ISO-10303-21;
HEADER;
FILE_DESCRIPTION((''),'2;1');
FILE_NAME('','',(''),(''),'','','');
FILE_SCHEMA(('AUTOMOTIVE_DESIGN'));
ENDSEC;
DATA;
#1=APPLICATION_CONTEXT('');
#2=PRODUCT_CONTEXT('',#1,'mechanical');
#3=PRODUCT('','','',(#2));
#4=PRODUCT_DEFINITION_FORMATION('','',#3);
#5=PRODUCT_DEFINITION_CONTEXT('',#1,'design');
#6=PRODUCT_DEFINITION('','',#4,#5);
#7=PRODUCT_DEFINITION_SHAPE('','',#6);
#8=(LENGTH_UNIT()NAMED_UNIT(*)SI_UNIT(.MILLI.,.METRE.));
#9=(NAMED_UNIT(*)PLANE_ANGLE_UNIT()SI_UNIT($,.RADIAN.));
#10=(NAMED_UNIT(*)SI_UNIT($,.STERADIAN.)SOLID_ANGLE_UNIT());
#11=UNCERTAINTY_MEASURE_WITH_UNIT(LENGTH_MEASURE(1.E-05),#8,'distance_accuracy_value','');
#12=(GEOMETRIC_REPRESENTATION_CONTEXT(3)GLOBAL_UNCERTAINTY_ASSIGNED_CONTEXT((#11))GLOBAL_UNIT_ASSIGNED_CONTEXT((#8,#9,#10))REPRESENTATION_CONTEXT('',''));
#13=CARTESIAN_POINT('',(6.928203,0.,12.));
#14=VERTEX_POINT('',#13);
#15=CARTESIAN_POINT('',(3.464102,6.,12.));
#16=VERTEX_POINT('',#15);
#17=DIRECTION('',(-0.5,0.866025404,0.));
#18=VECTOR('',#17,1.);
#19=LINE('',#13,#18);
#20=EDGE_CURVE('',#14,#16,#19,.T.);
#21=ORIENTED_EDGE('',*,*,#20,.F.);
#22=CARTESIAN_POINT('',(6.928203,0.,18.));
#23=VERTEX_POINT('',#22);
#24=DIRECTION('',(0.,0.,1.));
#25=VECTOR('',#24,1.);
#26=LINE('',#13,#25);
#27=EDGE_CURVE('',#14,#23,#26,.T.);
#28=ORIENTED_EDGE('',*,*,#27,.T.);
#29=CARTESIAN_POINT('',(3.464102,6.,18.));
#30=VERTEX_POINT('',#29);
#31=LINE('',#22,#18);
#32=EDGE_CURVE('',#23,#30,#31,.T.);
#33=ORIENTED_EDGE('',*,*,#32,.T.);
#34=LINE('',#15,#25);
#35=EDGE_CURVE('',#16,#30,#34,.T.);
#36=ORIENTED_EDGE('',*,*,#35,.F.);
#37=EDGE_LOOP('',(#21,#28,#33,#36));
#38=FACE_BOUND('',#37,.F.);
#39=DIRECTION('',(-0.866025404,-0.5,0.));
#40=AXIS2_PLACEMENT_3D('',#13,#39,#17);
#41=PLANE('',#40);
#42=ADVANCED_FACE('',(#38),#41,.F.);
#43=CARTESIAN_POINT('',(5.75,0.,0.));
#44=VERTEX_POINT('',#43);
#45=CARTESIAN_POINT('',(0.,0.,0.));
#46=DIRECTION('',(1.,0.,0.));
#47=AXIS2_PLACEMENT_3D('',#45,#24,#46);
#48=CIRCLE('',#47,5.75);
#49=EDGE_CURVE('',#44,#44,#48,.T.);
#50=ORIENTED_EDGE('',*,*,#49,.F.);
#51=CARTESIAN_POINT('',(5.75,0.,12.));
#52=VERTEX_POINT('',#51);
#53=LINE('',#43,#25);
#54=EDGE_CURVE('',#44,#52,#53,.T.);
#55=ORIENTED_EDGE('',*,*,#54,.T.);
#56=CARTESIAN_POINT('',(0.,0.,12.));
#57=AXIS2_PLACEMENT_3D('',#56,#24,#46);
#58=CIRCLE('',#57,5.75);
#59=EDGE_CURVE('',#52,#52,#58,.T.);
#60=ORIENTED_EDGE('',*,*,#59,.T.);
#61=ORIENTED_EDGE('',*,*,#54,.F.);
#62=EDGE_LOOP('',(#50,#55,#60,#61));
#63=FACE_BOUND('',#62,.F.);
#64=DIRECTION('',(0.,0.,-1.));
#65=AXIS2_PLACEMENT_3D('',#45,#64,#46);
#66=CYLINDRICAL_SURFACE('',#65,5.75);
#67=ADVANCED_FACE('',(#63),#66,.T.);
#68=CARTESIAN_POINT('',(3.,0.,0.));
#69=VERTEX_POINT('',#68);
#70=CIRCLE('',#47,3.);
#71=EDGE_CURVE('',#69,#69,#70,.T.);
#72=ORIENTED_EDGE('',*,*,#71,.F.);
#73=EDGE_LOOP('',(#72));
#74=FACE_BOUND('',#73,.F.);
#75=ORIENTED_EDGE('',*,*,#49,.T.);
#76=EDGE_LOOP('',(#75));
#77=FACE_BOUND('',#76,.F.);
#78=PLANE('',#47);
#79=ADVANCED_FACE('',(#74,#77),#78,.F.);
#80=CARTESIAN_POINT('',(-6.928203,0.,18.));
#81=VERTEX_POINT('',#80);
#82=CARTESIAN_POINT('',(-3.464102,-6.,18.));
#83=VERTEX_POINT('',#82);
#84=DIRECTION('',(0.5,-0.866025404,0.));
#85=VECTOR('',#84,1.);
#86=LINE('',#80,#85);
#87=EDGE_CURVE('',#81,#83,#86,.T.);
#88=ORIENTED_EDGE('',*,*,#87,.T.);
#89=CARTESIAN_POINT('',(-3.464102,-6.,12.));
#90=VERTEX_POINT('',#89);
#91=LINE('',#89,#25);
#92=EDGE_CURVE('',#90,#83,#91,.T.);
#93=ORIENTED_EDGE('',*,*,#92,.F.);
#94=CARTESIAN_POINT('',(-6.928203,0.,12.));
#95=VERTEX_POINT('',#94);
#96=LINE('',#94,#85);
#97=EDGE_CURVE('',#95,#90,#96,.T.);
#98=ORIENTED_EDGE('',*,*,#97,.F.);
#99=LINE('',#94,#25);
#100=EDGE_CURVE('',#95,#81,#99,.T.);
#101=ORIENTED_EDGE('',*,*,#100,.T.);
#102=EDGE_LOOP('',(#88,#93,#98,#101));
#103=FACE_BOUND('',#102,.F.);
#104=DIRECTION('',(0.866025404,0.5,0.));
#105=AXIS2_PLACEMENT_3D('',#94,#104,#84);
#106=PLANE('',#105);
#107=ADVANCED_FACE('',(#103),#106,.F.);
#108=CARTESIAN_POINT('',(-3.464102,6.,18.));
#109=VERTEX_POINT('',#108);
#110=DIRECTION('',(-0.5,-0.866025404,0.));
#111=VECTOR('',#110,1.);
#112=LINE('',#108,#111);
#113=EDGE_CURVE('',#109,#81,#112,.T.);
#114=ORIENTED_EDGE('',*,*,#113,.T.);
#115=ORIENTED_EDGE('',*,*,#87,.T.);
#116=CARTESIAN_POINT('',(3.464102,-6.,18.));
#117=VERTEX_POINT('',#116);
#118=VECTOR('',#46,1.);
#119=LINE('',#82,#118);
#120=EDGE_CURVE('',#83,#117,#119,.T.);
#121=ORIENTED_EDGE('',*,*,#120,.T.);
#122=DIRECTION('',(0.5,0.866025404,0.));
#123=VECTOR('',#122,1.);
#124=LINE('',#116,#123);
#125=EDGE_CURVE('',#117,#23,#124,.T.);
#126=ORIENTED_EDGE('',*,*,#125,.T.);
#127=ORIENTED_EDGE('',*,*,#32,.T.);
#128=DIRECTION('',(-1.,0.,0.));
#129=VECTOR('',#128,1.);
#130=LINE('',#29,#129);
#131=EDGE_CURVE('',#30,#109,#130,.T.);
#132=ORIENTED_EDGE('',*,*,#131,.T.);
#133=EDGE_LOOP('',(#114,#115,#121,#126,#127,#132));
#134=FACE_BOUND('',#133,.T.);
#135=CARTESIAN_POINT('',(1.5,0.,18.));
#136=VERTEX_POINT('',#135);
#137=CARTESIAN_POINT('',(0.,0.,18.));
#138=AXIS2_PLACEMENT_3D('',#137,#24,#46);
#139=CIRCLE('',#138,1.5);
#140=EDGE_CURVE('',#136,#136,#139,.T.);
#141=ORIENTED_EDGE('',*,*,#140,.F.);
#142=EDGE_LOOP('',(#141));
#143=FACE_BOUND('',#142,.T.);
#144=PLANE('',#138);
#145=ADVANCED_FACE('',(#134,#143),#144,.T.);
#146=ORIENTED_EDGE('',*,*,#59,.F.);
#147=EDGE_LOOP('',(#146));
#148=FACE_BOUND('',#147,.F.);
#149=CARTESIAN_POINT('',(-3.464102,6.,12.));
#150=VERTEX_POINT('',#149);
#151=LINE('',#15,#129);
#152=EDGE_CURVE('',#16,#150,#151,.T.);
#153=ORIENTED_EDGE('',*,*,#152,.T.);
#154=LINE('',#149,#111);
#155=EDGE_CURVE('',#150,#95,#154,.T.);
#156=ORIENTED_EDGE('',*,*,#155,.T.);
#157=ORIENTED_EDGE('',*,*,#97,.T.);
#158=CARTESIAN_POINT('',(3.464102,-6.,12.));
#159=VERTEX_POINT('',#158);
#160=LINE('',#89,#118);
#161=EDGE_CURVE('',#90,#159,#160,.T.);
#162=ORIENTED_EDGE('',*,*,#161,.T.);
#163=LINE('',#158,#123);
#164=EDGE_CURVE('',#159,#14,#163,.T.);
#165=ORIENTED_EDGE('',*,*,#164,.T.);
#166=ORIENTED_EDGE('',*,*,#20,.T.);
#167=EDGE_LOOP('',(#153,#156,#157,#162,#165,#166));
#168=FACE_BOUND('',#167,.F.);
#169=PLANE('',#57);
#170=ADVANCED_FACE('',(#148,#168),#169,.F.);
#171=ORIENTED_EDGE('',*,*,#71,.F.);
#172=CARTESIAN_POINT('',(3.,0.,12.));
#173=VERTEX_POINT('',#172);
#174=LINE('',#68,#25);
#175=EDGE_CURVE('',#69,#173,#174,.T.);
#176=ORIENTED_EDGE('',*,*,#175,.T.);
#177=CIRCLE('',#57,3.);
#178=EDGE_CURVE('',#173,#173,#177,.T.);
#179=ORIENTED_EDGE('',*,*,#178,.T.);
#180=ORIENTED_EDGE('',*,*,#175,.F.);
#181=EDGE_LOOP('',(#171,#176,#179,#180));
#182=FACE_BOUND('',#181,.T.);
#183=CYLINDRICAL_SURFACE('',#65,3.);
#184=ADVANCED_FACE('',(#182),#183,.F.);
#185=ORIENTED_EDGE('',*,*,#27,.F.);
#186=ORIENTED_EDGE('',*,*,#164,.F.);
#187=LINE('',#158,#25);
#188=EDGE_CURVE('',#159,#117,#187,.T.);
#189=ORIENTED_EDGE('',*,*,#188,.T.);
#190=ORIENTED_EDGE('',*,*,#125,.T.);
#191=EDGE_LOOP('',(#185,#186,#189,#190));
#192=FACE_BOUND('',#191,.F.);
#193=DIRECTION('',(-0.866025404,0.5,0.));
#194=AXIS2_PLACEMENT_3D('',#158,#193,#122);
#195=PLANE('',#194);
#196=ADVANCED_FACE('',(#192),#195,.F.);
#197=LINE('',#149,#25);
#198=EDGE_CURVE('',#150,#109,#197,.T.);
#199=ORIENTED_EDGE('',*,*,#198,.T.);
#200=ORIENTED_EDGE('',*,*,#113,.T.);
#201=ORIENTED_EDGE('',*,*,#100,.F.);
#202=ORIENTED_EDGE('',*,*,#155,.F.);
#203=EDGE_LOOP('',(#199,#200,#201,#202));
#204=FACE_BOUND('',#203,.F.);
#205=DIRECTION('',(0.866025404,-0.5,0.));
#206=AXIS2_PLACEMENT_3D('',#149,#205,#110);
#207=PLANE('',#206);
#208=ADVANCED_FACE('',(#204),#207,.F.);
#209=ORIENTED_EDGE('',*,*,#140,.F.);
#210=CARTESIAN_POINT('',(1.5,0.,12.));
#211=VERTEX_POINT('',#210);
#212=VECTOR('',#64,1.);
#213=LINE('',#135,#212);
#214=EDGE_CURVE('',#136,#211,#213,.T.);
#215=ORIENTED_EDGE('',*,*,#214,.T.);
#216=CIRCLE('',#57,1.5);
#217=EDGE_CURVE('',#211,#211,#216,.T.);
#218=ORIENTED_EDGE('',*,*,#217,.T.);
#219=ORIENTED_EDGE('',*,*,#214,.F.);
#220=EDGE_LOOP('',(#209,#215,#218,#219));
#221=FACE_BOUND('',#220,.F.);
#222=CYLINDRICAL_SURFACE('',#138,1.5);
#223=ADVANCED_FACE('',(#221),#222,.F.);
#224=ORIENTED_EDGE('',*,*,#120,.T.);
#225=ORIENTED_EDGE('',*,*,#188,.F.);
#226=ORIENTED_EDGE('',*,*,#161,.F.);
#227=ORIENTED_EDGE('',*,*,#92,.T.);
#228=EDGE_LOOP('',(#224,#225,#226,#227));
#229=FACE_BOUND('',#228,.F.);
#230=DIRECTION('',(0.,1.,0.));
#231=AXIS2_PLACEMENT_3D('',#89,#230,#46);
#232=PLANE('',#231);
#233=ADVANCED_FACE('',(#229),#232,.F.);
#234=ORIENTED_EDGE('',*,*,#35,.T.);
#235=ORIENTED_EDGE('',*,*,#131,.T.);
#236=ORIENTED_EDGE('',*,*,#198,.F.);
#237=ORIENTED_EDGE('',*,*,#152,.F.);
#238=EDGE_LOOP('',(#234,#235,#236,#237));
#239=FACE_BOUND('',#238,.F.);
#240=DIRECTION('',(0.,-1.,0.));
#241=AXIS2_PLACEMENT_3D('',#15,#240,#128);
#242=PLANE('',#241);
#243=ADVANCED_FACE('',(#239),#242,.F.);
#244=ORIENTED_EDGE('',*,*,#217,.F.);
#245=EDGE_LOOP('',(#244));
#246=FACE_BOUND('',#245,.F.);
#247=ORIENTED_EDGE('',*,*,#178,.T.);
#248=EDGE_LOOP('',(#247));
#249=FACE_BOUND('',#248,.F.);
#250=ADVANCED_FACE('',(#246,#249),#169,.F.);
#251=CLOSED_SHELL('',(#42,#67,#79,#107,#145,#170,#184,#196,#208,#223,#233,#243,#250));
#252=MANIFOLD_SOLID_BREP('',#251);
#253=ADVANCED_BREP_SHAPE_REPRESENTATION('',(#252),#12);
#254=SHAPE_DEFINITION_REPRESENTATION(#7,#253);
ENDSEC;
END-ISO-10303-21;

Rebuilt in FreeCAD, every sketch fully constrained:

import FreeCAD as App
import Part
import Sketcher

V = App.Vector
Q = App.Units.Quantity


def add_polygon(sketch, points):
    """Adds a closed chain of lines whose ends are joined by coincident constraints."""
    first, n = sketch.GeometryCount, len(points)
    for a, b in zip(points, points[1:] + points[:1]):
        sketch.addGeometry(Part.LineSegment(App.Vector(*a, 0), App.Vector(*b, 0)), False)
    for i in range(n):
        sketch.addConstraint(Sketcher.Constraint("Coincident", first + i, 2, first + (i + 1) % n, 1))

doc = App.newDocument("Part")
body = doc.addObject("PartDesign::Body", "Body")

# Sketch on XY plane
sketch1 = body.newObject("Sketcher::SketchObject", "Sketch")
sketch1.AttachmentSupport = (doc.getObject("XY_Plane"), [""])
sketch1.MapMode = "FlatFace"
sketch1.addGeometry(Part.Circle(V(0, 0, 0), V(0, 0, 1), 5.75), False)
sketch1.addGeometry(Part.Circle(V(0, 0, 0), V(0, 0, 1), 3), False)
sketch1.addConstraint(Sketcher.Constraint("Coincident", 0, 3, -1, 1))
sketch1.addConstraint(Sketcher.Constraint("Coincident", 1, 3, -1, 1))
sketch1.addConstraint(Sketcher.Constraint("Diameter", 1, Q("6 mm")))
sketch1.addConstraint(Sketcher.Constraint("Diameter", 0, Q("11.5 mm")))
pad1 = body.newObject("PartDesign::Pad", "Pad")
pad1.Profile = sketch1
pad1.Length = 12

# Sketch on XY plane
sketch2 = body.newObject("Sketcher::SketchObject", "Sketch001")
sketch2.AttachmentSupport = (doc.getObject("XY_Plane"), [""])
sketch2.MapMode = "FlatFace"
sketch2.AttachmentOffset = App.Placement(V(0, 0, 12), App.Rotation())
add_polygon(sketch2, [(3.464102, -6), (6.928203, 0), (3.464102, 6), (-3.464102, 6), (-6.928203, 0), (-3.464102, -6)])  # lines 0-5
sketch2.addConstraint(Sketcher.Constraint("Horizontal", 2))
sketch2.addConstraint(Sketcher.Constraint("Horizontal", 5))
sketch2.addConstraint(Sketcher.Constraint("Symmetric", 0, 2, 3, 2, -1, 1))
sketch2.addConstraint(Sketcher.Constraint("Symmetric", 1, 2, 4, 2, -1, 1))
sketch2.addConstraint(Sketcher.Constraint("PointOnObject", 0, 2, -1))
sketch2.addConstraint(Sketcher.Constraint("Parallel", 0, 3))
sketch2.addConstraint(Sketcher.Constraint("Vertical", 2, 2, 4, 2))
sketch2.addConstraint(Sketcher.Constraint("Angle", 0, Q("60 deg")))
sketch2.addConstraint(Sketcher.Constraint("DistanceY", -1, 1, 1, 2, Q("6 mm")))
sketch2.addConstraint(Sketcher.Constraint("DistanceX", -1, 1, 1, 2, Q("3.464102 mm")))
pad2 = body.newObject("PartDesign::Pad", "Pad001")
pad2.Profile = sketch2
pad2.Length = 6

# Sketch on XY plane
sketch3 = body.newObject("Sketcher::SketchObject", "Sketch002")
sketch3.AttachmentSupport = (doc.getObject("XY_Plane"), [""])
sketch3.MapMode = "FlatFace"
sketch3.AttachmentOffset = App.Placement(V(0, 0, 18), App.Rotation())
sketch3.addGeometry(Part.Circle(V(0, 0, 0), V(0, 0, 1), 1.5), False)
sketch3.addConstraint(Sketcher.Constraint("Coincident", 0, 3, -1, 1))
sketch3.addConstraint(Sketcher.Constraint("Diameter", 0, Q("3 mm")))
pocket1 = body.newObject("PartDesign::Pocket", "Pocket")
pocket1.Profile = sketch3
pocket1.Type = "ThroughAll"

doc.recompute()
